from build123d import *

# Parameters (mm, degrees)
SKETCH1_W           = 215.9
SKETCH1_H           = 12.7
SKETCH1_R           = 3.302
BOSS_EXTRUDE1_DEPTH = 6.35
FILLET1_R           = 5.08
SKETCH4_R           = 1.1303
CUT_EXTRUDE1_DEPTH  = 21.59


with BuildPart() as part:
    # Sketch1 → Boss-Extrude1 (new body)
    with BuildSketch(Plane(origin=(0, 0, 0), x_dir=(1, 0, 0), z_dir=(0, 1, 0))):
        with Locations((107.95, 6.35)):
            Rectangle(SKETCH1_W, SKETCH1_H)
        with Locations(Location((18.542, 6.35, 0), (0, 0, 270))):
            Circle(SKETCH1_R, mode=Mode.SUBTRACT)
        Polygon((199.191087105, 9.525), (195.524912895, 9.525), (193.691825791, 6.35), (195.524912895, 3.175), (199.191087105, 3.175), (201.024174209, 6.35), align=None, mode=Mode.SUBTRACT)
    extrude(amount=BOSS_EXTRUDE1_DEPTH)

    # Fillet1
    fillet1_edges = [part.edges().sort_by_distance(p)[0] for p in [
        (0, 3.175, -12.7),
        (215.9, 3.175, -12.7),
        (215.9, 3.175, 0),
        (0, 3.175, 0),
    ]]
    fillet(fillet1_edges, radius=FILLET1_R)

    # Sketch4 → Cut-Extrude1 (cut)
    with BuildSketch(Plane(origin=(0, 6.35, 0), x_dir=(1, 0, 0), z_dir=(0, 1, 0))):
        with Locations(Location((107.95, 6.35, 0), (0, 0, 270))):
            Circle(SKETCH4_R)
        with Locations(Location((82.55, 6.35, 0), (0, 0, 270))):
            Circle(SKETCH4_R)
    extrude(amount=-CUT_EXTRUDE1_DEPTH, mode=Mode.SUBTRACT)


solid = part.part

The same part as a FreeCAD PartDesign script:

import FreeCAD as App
import Part
import Sketcher
Q = App.Units.Quantity


def edges_at(feature, points):
    """Names of the edges that pass closest to the given points."""
    edges = feature.Shape.Edges
    near = lambda p: min(range(len(edges)), key=lambda i: edges[i].distToShape(Part.Vertex(*p))[0])
    return sorted({f"Edge{near(p) + 1}" for p in points})


def add_polygon(sketch, points):
    """Adds a closed chain of lines whose ends are joined by coincident constraints."""
    first, n = sketch.GeometryCount, len(points)
    for a, b in zip(points, points[1:] + points[:1]):
        sketch.addGeometry(Part.LineSegment(App.Vector(*a, 0), App.Vector(*b, 0)), False)
    for i in range(n):
        sketch.addConstraint(Sketcher.Constraint("Coincident", first + i, 2, first + (i + 1) % n, 1))

doc = App.newDocument("Part")
body = doc.addObject("PartDesign::Body", "Body")

# Sketch on XZ plane
sketch1 = doc.addObject("Sketcher::SketchObject", "Sketch")
body.addObject(sketch1)
sketch1.AttachmentSupport = (doc.XZ_Plane, [""])
sketch1.MapMode = "FlatFace"
add_polygon(sketch1, [(0, -12.7), (0, 0), (215.9, 0), (215.9, -12.7)])  # lines 0-3
sketch1.addGeometry(Part.Circle(App.Vector(18.5, -6.3, 0), App.Vector(0, 0, 1), 3.3), False)  # 4
add_polygon(sketch1, [(195.5, -9.5), (199.2, -9.5), (201, -6.3), (199.2, -3.2), (195.5, -3.2), (193.7, -6.3)])  # lines 5-10
sketch1.addConstraint(Sketcher.Constraint("Vertical", 0))
sketch1.addConstraint(Sketcher.Constraint("Horizontal", 1))
sketch1.addConstraint(Sketcher.Constraint("Vertical", 2))
sketch1.addConstraint(Sketcher.Constraint("Horizontal", 3))
sketch1.addConstraint(Sketcher.Constraint("Horizontal", 5))
sketch1.addConstraint(Sketcher.Constraint("Horizontal", 8))
sketch1.addConstraint(Sketcher.Constraint("Coincident", 0, 2, -1, 1))
sketch1.addConstraint(Sketcher.Constraint("Parallel", 6, 9))
sketch1.addConstraint(Sketcher.Constraint("Parallel", 7, 10))
sketch1.addConstraint(Sketcher.Constraint("Horizontal", 4, 3, 6, 2))
sketch1.addConstraint(Sketcher.Constraint("Horizontal", 6, 2, 9, 2))
sketch1.addConstraint(Sketcher.Constraint("Vertical", 5, 2, 7, 2))
sketch1.addConstraint(Sketcher.Constraint("Vertical", 8, 2, 10, 2))
sketch1.addConstraint(Sketcher.Constraint("Diameter", 4, Q("0.26 in")))
sketch1.addConstraint(Sketcher.Constraint("DistanceX", 1, 1, 1, 2, Q("8.5 in")))
sketch1.addConstraint(Sketcher.Constraint("DistanceY", 0, 1, 0, 2, Q("0.5 in")))
sketch1.addConstraint(Sketcher.Constraint("Angle", 6, Q("60 deg")))
sketch1.addConstraint(Sketcher.Constraint("DistanceX", -1, 1, 4, 3, Q("0.73 in")))
sketch1.addConstraint(Sketcher.Constraint("DistanceY", 4, 3, -1, 1, Q("0.25 in")))
sketch1.addConstraint(Sketcher.Constraint("DistanceY", 5, 2, 7, 2, Q("0.25 in")))
sketch1.addConstraint(Sketcher.Constraint("DistanceX", 5, 1, 5, 2, 3.666174))
sketch1.addConstraint(Sketcher.Constraint("DistanceX", -1, 1, 5, 2, 199.191087))
pad1 = doc.addObject("PartDesign::Pad", "Pad")
body.addObject(pad1)
pad1.Profile = sketch1
pad1.Length = Q("0.25 in")
pad1.Reversed = True
doc.recompute()

fillet = doc.addObject("PartDesign::Fillet", "Fillet")
body.addObject(fillet)
fillet.Base = (pad1, edges_at(pad1, [
    (0, 3.175, -12.7),
    (215.9, 3.175, -12.7),
    (215.9, 3.175, 0),
    (0, 3.175, 0),
]))
fillet.Radius = Q("0.2 in")

# Sketch on XZ plane
sketch2 = doc.addObject("Sketcher::SketchObject", "Sketch001")
body.addObject(sketch2)
sketch2.AttachmentSupport = (doc.XZ_Plane, [""])
sketch2.MapMode = "FlatFace"
sketch2.AttachmentOffset = App.Placement(App.Vector(0, 0, -0.25 * 25.4), App.Rotation())
sketch2.addGeometry(Part.Circle(App.Vector(108, -6.3, 0), App.Vector(0, 0, 1), 1.1), False)
sketch2.addGeometry(Part.Circle(App.Vector(82.5, -6.3, 0), App.Vector(0, 0, 1), 1.1), False)
sketch2.addConstraint(Sketcher.Constraint("Equal", 0, 1))
sketch2.addConstraint(Sketcher.Constraint("Horizontal", 0, 3, 1, 3))
sketch2.addConstraint(Sketcher.Constraint("Diameter", 0, Q("0.089 in")))
sketch2.addConstraint(Sketcher.Constraint("DistanceX", 1, 3, 0, 3, Q("1 in")))
sketch2.addConstraint(Sketcher.Constraint("DistanceX", -1, 1, 0, 3, Q("4.25 in")))
sketch2.addConstraint(Sketcher.Constraint("DistanceY", 0, 3, -1, 1, Q("0.25 in")))
pocket1 = doc.addObject("PartDesign::Pocket", "Pocket")
body.addObject(pocket1)
pocket1.Profile = sketch2
pocket1.Length = Q("0.85 in")
pocket1.Reversed = True

doc.recompute()
